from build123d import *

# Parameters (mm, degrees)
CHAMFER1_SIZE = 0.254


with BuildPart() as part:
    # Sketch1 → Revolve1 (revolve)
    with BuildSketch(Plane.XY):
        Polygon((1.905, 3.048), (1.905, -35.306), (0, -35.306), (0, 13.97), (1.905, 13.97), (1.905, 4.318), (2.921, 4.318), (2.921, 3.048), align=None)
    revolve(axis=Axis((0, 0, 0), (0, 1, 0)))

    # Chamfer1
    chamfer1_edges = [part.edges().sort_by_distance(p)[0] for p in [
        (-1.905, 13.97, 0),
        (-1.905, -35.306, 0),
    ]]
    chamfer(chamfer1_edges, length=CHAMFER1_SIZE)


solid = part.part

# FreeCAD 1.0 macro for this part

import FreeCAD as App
import Part
import Sketcher
Q = App.Units.Quantity


def edges_at(feature, points):
    """Names of the edges that pass closest to the given points."""
    edges = feature.Shape.Edges
    near = lambda p: min(range(len(edges)), key=lambda i: edges[i].distToShape(Part.Vertex(*p))[0])
    return sorted({f"Edge{near(p) + 1}" for p in points})


def add_polygon(sketch, points):
    """Adds a closed chain of lines whose ends are joined by coincident constraints."""
    first, n = sketch.GeometryCount, len(points)
    for a, b in zip(points, points[1:] + points[:1]):
        sketch.addGeometry(Part.LineSegment(App.Vector(*a, 0), App.Vector(*b, 0)), False)
    for i in range(n):
        sketch.addConstraint(Sketcher.Constraint("Coincident", first + i, 2, first + (i + 1) % n, 1))

doc = App.newDocument("Part")
body = doc.addObject("PartDesign::Body", "Body")

# Sketch on XY plane
sketch1 = body.newObject("Sketcher::SketchObject", "Sketch")
sketch1.AttachmentSupport = (doc.getObject("XY_Plane"), [""])
sketch1.MapMode = "FlatFace"
add_polygon(sketch1, [(1.9, -35.3), (1.9, 3), (2.9, 3), (2.9, 4.3), (1.9, 4.3), (1.9, 14), (0, 14), (0, -35.3)])  # lines 0-7
sketch1.addConstraint([
    Sketcher.Constraint("Vertical", 0),
    Sketcher.Constraint("Horizontal", 1),
    Sketcher.Constraint("Vertical", 2),
    Sketcher.Constraint("Horizontal", 3),
    Sketcher.Constraint("Vertical", 4),
    Sketcher.Constraint("Horizontal", 5),
    Sketcher.Constraint("Vertical", 6),
    Sketcher.Constraint("Horizontal", 7),
    Sketcher.Constraint("PointOnObject", 5, 2, -2),
    Sketcher.Constraint("Vertical", 0, 2, 3, 2),
    Sketcher.Constraint("DistanceX", 1, 1, 1, 2, Q("0.04 in")),
    Sketcher.Constraint("DistanceY", 0, 1, 0, 2, Q("1.51 in")),
    Sketcher.Constraint("DistanceY", 2, 1, 2, 2, Q("0.05 in")),
    Sketcher.Constraint("DistanceY", 4, 1, 4, 2, Q("0.38 in")),
    Sketcher.Constraint("DistanceX", 5, 2, 5, 1, Q("0.075 in")),
    Sketcher.Constraint("DistanceY", -1, 1, 0, 2, Q("0.12 in")),
])
revolution = body.newObject("PartDesign::Revolution", "Revolution")
revolution.Profile = sketch1
revolution.ReferenceAxis = (sketch1, ["V_Axis"])
revolution.Angle = 360
doc.recompute()

chamfer = body.newObject("PartDesign::Chamfer", "Chamfer")
chamfer.Base = (revolution, edges_at(revolution, [(-1.905, 13.97, 0), (-1.905, -35.306, 0)]))
chamfer.Size = Q("0.01 in")

doc.recompute()
